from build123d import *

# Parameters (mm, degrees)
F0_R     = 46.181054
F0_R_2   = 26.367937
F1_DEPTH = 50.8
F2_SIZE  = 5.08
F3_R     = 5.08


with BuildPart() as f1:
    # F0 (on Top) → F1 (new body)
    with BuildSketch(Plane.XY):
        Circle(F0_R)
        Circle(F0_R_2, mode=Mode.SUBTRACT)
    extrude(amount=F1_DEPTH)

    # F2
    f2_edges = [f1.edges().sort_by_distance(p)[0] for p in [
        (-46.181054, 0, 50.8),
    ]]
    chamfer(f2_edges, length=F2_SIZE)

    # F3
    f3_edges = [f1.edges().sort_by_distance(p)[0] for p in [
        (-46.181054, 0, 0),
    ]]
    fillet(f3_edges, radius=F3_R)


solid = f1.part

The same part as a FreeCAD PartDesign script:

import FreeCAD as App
import Part
import Sketcher
Q = App.Units.Quantity


def edges_at(feature, points):
    """Names of the edges that pass closest to the given points."""
    edges = feature.Shape.Edges
    near = lambda p: min(range(len(edges)), key=lambda i: edges[i].distToShape(Part.Vertex(*p))[0])
    return sorted({f"Edge{near(p) + 1}" for p in points})

doc = App.newDocument("Part")
body = doc.addObject("PartDesign::Body", "Body")

# Sketch on XY plane
sketch1 = doc.addObject("Sketcher::SketchObject", "Sketch")
body.addObject(sketch1)
sketch1.AttachmentSupport = (doc.XY_Plane, [""])
sketch1.MapMode = "FlatFace"
sketch1.addGeometry(Part.Circle(App.Vector(0, 0, 0), App.Vector(0, 0, 1), 46.181054), False)
sketch1.addGeometry(Part.Circle(App.Vector(0, 0, 0), App.Vector(0, 0, 1), 26.367937), False)
sketch1.addConstraint(Sketcher.Constraint("Coincident", 0, 3, -1, 1))
sketch1.addConstraint(Sketcher.Constraint("Coincident", 1, 3, -1, 1))
sketch1.addConstraint(Sketcher.Constraint("Diameter", 0, Q("92.362108 mm")))
sketch1.addConstraint(Sketcher.Constraint("Diameter", 1, Q("52.735874 mm")))
pad1 = doc.addObject("PartDesign::Pad", "Pad")
body.addObject(pad1)
pad1.Profile = sketch1
pad1.Length = Q("2 in")
doc.recompute()

chamfer = doc.addObject("PartDesign::Chamfer", "Chamfer")
body.addObject(chamfer)
chamfer.Base = (pad1, edges_at(pad1, [(-46.181, 0, 50.8)]))
chamfer.Size = Q("0.2 in")
doc.recompute()

fillet = doc.addObject("PartDesign::Fillet", "Fillet")
body.addObject(fillet)
fillet.Base = (chamfer, edges_at(chamfer, [(-46.181, 0, 0)]))
fillet.Radius = Q("0.2 in")

doc.recompute()
